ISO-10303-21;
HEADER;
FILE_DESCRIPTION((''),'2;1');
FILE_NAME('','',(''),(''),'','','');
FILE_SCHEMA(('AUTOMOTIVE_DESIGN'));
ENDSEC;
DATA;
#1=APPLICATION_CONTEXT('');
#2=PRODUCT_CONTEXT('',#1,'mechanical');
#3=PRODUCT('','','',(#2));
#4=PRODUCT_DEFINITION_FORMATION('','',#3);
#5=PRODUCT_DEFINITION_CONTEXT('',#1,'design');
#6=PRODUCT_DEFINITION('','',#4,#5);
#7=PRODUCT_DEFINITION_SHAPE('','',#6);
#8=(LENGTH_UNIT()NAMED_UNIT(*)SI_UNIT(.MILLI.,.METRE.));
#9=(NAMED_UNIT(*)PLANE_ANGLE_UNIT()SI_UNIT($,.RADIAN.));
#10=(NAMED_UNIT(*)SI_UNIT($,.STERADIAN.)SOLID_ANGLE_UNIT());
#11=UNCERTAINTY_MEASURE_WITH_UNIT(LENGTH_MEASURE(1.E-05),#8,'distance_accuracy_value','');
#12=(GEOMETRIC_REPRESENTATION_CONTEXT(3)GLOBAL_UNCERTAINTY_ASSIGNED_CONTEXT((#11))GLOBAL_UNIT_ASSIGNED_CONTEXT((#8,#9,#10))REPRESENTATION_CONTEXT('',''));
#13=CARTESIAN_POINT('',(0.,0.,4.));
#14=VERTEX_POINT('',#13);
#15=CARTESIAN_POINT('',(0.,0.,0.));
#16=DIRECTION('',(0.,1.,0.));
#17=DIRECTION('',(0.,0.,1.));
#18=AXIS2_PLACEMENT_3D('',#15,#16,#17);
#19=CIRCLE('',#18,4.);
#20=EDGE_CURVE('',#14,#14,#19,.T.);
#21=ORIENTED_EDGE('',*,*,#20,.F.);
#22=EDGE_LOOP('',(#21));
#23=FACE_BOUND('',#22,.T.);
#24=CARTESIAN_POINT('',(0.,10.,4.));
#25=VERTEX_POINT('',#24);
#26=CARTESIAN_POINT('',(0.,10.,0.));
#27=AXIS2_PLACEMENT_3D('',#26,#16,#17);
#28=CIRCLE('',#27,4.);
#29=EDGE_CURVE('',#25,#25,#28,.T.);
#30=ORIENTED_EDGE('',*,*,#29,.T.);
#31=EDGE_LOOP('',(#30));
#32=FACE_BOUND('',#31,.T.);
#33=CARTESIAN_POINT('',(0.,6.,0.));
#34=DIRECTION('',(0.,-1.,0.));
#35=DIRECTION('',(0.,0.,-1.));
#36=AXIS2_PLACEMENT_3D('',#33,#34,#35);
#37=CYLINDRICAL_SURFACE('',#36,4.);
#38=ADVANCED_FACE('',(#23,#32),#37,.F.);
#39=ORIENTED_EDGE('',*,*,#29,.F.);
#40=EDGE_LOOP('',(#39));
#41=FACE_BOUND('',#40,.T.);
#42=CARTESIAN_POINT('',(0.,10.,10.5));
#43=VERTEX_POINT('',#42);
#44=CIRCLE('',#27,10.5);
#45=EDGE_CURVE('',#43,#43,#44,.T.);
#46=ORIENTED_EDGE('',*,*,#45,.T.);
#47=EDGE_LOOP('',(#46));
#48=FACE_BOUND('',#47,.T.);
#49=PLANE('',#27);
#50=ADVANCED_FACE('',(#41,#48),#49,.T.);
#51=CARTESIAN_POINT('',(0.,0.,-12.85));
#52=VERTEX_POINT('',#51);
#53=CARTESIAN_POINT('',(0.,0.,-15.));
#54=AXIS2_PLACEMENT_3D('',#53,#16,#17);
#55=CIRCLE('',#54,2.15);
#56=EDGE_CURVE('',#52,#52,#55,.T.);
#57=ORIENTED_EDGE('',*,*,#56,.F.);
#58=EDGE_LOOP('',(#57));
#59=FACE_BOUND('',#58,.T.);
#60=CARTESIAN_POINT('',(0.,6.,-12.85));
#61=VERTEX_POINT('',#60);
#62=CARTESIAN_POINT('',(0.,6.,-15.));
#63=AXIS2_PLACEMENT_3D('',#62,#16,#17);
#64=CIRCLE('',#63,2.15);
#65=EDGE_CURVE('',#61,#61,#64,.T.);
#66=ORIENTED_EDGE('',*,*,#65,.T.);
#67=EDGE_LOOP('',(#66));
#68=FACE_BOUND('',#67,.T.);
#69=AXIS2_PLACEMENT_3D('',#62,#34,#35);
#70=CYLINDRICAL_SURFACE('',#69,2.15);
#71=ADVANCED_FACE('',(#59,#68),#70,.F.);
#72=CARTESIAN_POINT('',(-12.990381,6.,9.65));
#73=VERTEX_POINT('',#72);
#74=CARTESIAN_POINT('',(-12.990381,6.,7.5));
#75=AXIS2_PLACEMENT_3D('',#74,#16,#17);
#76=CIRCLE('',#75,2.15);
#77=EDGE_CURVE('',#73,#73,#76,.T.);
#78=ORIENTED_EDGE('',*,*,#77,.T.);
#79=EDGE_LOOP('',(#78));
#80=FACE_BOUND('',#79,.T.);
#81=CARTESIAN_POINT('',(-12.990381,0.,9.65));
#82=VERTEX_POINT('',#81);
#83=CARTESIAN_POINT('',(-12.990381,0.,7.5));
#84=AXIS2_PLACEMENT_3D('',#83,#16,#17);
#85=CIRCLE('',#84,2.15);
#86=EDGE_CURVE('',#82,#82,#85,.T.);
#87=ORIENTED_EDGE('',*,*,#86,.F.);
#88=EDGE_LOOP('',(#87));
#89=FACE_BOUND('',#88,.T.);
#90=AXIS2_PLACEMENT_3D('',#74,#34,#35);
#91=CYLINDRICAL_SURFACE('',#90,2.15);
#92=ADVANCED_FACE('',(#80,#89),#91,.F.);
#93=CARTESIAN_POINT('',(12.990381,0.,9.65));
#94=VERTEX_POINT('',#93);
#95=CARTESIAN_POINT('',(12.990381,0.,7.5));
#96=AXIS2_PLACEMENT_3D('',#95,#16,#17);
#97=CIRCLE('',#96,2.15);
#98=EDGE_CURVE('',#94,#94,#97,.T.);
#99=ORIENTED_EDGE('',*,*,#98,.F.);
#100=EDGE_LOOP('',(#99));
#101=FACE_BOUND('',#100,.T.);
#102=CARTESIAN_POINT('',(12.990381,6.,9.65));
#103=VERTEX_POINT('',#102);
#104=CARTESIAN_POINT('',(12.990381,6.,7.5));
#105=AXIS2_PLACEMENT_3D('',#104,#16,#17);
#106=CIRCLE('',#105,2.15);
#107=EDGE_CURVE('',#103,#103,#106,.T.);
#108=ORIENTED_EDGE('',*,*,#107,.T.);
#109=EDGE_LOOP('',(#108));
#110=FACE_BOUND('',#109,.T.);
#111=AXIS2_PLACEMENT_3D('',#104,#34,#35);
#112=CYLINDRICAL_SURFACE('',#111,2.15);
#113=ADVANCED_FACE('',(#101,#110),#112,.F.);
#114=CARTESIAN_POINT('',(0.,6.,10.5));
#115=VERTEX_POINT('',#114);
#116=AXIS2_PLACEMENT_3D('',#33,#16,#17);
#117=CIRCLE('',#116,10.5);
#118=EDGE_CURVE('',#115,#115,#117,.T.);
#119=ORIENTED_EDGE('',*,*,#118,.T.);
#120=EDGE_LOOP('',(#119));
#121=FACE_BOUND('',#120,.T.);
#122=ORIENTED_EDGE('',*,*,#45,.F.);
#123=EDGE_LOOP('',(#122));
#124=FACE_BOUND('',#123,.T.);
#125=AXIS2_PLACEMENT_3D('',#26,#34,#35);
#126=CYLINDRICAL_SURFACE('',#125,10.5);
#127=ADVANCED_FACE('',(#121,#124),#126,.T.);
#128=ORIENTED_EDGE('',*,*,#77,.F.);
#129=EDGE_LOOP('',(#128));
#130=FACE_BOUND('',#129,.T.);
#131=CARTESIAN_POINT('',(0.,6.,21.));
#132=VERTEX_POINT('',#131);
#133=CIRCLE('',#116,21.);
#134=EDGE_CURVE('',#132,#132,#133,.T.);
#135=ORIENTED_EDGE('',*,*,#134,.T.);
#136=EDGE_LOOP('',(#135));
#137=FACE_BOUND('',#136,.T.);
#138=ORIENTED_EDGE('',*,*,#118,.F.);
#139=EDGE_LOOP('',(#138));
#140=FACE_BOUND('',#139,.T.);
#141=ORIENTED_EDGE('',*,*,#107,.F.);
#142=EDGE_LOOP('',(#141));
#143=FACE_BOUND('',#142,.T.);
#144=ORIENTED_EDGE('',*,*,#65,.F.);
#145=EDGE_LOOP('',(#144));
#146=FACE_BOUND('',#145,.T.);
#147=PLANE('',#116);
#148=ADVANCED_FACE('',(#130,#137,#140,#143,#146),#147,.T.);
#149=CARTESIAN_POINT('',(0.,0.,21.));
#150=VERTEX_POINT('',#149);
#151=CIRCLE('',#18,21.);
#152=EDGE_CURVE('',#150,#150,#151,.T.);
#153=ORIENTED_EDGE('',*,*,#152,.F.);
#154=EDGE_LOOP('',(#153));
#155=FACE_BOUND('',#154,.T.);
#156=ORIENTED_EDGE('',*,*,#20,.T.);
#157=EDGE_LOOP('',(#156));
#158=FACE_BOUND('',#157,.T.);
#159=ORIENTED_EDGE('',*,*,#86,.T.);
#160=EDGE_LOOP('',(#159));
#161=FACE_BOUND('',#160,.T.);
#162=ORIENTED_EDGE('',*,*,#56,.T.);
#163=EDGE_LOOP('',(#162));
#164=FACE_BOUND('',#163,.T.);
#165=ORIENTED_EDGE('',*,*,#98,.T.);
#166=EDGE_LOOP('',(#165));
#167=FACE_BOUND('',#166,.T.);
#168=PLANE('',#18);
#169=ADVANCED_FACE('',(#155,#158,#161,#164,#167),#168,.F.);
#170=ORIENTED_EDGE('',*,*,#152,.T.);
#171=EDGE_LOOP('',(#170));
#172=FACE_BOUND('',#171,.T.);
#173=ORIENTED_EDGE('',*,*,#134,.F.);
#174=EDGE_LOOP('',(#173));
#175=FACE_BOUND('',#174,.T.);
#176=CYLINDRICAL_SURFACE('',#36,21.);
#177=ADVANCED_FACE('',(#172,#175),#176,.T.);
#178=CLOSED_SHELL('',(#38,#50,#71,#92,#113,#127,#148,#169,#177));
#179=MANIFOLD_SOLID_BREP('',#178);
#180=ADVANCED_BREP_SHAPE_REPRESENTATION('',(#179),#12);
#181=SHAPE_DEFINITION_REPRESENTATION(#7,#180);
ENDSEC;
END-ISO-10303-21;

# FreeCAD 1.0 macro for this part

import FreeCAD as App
import Part
import Sketcher

V = App.Vector
Q = App.Units.Quantity

doc = App.newDocument("Part")
body = doc.addObject("PartDesign::Body", "Body")

# Sketch on XZ plane
sketch1 = body.newObject("Sketcher::SketchObject", "Sketch")
sketch1.AttachmentSupport = (doc.getObject("XZ_Plane"), [""])
sketch1.MapMode = "FlatFace"
sketch1.addGeometry([
    Part.Circle(V(0, 0, 0), V(0, 0, 1), 21),  # 0
    Part.Circle(V(0, -15, 0), V(0, 0, 1), 2.1),  # 1
    Part.Circle(V(-13, 7.5, 0), V(0, 0, 1), 2.1),  # 2
    Part.Circle(V(0, 0, 0), V(0, 0, 1), 4),  # 3
    Part.Circle(V(13, 7.5, 0), V(0, 0, 1), 2.1),  # 4
], False)
sketch1.addConstraint([
    Sketcher.Constraint("Coincident", 0, 3, -1, 1),
    Sketcher.Constraint("Coincident", 3, 3, -1, 1),
    Sketcher.Constraint("Equal", 1, 2),
    Sketcher.Constraint("Equal", 2, 4),
    Sketcher.Constraint("Symmetric", 2, 3, 4, 3, -2),
    Sketcher.Constraint("PointOnObject", 1, 3, -2),
    Sketcher.Constraint("Diameter", 0, Q("42 mm")),
    Sketcher.Constraint("Diameter", 3, Q("8 mm")),
    Sketcher.Constraint("Diameter", 1, Q("4.3 mm")),
    Sketcher.Constraint("DistanceY", 1, 3, -1, 1, Q("15 mm")),
    Sketcher.Constraint("DistanceY", -1, 1, 2, 3, Q("7.5 mm")),
    Sketcher.Constraint("DistanceX", 2, 3, -1, 1, Q("12.990381 mm")),
])
pad1 = body.newObject("PartDesign::Pad", "Pad")
pad1.Profile = sketch1
pad1.Length = 6
pad1.Reversed = True

# Sketch on XZ plane
sketch2 = body.newObject("Sketcher::SketchObject", "Sketch001")
sketch2.AttachmentSupport = (doc.getObject("XZ_Plane"), [""])
sketch2.MapMode = "FlatFace"
sketch2.AttachmentOffset = App.Placement(V(0, 0, -6), App.Rotation())
sketch2.addGeometry([
    Part.Circle(V(0, 0, 0), V(0, 0, 1), 10.5),
    Part.Circle(V(0, 0, 0), V(0, 0, 1), 4),
], False)
sketch2.addConstraint([
    Sketcher.Constraint("Coincident", 0, 3, -1, 1),
    Sketcher.Constraint("Coincident", 1, 3, -1, 1),
    Sketcher.Constraint("Diameter", 0, Q("21 mm")),
    Sketcher.Constraint("Diameter", 1, Q("8 mm")),
])
pad2 = body.newObject("PartDesign::Pad", "Pad001")
pad2.Profile = sketch2
pad2.Length = 4
pad2.Reversed = True

doc.recompute()
